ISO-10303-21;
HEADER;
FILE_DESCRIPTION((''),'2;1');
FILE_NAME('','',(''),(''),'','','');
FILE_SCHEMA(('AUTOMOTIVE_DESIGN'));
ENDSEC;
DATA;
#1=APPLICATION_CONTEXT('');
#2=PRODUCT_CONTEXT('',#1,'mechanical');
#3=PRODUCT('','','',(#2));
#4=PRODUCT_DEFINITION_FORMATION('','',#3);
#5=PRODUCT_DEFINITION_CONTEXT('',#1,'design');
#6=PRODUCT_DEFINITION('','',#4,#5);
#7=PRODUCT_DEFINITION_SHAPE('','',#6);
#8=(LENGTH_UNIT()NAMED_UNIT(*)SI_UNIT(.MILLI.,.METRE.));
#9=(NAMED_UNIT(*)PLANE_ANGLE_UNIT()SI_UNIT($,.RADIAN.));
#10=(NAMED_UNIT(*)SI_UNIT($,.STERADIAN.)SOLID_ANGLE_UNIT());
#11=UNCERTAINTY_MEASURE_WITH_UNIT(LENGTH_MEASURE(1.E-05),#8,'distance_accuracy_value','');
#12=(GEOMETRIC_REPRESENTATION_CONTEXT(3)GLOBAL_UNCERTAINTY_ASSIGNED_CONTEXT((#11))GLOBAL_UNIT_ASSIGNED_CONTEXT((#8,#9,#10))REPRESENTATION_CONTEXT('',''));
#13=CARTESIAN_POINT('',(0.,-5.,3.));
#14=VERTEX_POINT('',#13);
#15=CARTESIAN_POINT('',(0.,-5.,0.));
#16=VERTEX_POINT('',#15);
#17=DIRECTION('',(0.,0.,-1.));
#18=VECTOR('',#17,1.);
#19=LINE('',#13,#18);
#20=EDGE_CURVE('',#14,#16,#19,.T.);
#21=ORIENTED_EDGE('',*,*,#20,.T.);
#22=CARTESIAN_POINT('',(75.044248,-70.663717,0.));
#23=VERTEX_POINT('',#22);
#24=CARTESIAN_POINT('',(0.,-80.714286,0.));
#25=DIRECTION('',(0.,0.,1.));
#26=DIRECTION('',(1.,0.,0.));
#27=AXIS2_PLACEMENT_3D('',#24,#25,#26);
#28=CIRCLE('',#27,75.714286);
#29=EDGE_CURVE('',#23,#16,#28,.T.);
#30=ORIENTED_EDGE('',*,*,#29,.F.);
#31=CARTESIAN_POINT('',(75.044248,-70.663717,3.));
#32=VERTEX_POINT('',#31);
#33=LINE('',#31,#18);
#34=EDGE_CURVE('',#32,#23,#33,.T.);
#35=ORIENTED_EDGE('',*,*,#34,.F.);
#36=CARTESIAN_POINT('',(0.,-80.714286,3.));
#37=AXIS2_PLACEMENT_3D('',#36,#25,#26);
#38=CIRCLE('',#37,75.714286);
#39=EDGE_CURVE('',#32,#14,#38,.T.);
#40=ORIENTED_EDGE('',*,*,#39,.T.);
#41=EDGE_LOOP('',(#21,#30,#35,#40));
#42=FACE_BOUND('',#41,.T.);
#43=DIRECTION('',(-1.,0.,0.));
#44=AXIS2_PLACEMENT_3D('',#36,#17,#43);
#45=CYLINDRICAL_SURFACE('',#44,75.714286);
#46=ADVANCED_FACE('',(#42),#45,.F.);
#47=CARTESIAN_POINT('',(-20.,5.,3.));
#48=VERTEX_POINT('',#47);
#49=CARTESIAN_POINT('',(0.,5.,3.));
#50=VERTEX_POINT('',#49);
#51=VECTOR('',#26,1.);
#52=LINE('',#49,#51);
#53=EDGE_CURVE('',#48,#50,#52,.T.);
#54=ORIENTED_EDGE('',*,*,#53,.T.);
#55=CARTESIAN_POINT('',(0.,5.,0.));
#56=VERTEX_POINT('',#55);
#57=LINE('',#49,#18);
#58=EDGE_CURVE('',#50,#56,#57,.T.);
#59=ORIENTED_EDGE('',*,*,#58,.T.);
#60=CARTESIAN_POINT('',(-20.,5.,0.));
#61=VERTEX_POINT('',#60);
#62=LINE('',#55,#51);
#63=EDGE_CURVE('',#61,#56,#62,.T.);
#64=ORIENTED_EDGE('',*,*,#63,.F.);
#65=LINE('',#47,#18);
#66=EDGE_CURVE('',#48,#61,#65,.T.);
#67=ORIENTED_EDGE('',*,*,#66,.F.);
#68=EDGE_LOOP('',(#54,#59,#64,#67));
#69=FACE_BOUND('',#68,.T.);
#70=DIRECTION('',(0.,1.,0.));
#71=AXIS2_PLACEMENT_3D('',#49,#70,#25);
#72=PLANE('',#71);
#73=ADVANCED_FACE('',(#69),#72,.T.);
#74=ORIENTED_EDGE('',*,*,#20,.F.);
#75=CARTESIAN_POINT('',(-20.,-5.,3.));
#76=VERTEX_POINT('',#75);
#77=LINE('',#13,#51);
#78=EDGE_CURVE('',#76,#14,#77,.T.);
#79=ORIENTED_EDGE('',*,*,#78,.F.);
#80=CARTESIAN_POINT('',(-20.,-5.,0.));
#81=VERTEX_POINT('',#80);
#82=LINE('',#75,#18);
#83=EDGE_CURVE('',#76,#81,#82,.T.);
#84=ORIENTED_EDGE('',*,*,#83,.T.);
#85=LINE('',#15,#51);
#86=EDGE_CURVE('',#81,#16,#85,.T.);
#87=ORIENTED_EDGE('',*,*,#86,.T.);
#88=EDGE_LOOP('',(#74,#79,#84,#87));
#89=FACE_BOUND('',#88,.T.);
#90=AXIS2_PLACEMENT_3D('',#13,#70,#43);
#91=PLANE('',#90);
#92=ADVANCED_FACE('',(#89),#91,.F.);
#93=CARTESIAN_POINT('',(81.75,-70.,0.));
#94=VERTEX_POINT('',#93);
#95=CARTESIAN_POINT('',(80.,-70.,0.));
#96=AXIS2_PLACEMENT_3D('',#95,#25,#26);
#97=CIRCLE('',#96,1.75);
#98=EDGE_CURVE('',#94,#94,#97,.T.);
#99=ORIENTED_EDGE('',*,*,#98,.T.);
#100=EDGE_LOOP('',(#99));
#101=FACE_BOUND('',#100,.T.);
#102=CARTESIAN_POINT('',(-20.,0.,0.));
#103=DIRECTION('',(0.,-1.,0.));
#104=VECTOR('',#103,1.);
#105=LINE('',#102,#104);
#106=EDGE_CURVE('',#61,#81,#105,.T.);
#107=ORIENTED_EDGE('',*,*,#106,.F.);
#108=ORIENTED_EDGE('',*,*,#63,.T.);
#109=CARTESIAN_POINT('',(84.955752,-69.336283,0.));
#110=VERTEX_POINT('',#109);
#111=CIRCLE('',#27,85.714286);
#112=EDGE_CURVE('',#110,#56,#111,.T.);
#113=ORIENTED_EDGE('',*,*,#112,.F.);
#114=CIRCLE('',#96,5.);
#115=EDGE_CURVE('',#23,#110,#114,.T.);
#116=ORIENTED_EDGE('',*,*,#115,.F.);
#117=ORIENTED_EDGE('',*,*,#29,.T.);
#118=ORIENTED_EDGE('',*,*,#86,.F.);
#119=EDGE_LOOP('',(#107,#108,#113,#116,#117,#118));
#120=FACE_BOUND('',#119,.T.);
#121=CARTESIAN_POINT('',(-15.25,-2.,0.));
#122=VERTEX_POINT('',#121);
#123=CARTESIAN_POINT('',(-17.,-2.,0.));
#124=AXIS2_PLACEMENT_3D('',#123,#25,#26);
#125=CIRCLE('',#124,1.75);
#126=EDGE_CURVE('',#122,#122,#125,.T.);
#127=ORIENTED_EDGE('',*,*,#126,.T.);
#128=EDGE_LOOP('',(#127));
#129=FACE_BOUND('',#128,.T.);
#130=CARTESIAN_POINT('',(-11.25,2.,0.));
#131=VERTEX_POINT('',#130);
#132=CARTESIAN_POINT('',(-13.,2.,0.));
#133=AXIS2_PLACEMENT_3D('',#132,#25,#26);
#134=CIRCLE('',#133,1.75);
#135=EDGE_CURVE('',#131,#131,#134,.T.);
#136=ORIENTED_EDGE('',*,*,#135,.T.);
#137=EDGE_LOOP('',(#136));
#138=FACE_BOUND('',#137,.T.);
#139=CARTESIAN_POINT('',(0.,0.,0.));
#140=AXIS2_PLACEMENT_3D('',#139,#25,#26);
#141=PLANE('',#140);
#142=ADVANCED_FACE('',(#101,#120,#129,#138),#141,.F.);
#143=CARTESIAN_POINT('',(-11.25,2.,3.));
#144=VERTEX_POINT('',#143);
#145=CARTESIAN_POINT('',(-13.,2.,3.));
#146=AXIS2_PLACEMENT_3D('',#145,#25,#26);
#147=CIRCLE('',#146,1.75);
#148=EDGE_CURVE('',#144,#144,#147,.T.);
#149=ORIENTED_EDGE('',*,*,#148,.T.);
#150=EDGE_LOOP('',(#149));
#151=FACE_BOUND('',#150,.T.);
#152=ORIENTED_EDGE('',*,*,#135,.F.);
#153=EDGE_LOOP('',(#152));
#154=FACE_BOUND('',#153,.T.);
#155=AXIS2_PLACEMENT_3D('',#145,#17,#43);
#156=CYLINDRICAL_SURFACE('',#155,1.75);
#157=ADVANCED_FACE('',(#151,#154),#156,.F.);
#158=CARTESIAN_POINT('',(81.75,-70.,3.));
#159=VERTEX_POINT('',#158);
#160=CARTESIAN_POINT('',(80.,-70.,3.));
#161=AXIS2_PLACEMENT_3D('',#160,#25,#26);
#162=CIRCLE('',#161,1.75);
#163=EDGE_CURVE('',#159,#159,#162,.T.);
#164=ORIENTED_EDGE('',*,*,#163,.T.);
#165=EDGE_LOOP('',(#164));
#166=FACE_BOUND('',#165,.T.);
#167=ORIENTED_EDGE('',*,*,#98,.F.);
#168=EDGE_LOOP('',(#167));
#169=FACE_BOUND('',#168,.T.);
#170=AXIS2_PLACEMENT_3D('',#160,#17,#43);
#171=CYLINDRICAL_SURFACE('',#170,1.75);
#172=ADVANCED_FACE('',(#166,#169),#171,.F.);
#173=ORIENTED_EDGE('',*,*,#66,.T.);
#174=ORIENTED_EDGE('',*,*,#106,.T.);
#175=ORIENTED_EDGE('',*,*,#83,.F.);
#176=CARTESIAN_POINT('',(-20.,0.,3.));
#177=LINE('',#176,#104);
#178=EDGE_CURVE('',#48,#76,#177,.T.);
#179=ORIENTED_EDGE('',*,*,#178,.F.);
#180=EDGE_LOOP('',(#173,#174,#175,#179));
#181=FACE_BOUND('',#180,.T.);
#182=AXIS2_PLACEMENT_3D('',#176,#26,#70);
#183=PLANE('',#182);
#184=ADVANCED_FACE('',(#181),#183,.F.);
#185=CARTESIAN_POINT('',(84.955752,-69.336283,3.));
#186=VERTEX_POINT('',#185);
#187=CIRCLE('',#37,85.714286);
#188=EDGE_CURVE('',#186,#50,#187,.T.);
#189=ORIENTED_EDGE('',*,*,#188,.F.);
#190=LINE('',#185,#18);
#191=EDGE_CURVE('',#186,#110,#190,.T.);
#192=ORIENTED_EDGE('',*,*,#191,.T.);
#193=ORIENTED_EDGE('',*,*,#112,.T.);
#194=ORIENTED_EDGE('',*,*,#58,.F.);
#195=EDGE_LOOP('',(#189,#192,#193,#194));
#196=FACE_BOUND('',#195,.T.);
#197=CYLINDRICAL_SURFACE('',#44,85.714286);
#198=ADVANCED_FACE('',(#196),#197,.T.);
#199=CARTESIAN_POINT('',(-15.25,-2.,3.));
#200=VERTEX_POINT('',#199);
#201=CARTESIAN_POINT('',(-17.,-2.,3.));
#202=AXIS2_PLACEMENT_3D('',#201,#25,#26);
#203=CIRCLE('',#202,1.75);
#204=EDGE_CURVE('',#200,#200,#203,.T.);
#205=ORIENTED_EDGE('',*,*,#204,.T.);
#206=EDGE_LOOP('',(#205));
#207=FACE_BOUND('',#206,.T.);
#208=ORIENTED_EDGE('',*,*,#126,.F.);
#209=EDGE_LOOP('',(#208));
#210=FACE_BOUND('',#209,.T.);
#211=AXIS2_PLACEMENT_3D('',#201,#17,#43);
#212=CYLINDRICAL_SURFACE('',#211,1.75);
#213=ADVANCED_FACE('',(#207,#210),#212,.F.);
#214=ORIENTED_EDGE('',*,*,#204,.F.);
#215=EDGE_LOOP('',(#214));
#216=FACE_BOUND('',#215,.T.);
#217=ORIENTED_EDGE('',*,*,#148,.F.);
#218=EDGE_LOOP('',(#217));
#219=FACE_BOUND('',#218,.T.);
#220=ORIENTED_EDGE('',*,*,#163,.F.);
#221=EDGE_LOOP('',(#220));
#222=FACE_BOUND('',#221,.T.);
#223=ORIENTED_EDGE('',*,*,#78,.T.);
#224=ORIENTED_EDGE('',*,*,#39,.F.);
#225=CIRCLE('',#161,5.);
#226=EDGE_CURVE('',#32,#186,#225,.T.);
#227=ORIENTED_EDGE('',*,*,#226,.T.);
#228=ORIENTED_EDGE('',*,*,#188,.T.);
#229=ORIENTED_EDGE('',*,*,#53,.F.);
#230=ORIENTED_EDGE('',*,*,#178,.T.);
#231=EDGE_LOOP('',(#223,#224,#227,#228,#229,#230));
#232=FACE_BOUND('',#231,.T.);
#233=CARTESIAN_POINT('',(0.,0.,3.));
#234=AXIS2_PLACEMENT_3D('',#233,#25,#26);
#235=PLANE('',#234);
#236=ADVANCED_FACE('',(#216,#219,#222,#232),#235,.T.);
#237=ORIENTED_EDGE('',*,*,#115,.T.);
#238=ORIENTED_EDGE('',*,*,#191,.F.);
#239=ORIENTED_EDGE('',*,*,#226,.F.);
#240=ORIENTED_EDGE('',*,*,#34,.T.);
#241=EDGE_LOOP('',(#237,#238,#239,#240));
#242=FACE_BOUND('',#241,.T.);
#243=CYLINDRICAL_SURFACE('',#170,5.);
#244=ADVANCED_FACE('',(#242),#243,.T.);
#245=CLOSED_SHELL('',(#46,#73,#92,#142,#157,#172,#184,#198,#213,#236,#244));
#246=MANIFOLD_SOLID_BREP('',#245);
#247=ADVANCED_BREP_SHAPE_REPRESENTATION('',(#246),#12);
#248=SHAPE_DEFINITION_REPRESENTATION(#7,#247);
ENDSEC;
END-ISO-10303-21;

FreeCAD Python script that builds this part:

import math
import FreeCAD as App
import Part
import Sketcher
from FreeCAD import Vector

doc = App.newDocument("Part")
body = doc.addObject("PartDesign::Body", "Body")

sketch1 = body.newObject("Sketcher::SketchObject", "Sketch")
sketch1.AttachmentSupport = (doc.getObject("XY_Plane"), [""])
sketch1.MapMode = "FlatFace"
sketch1.addGeometry([
    Part.LineSegment(Vector(0, 5, 0), Vector(-20, 5, 0)),
    Part.LineSegment(Vector(-20, 5, 0), Vector(-20, -5, 0)),
    Part.LineSegment(Vector(-20, -5, 0), Vector(0, -5, 0)),
    Part.ArcOfCircle(Part.Circle(Vector(0, -80.7, 0), Vector(0, 0, 1), 75.7), math.radians(8), math.radians(90)),
    Part.ArcOfCircle(Part.Circle(Vector(80, -70, 0), Vector(0, 0, 1), 5), math.radians(-172), math.radians(8)),
    Part.ArcOfCircle(Part.Circle(Vector(0, -80.7, 0), Vector(0, 0, 1), 85.7), math.radians(8), math.radians(90)),
    Part.Circle(Vector(-17, -2, 0), Vector(0, 0, 1), 1.8),
    Part.Circle(Vector(-13, 2, 0), Vector(0, 0, 1), 1.8),
    Part.Circle(Vector(80, -70, 0), Vector(0, 0, 1), 1.8),
], False)
sketch1.addConstraint([
    Sketcher.Constraint("Coincident", 0, 2, 1, 1),
    Sketcher.Constraint("Coincident", 1, 2, 2, 1),
    Sketcher.Constraint("Tangent", 2, 2, 3, 2),
    Sketcher.Constraint("Tangent", 3, 1, 4, 1),
    Sketcher.Constraint("Tangent", 4, 2, 5, 1),
    Sketcher.Constraint("Tangent", 5, 2, 0, 1),
    Sketcher.Constraint("Horizontal", 0),
    Sketcher.Constraint("Vertical", 1),
    Sketcher.Constraint("Horizontal", 2),
    Sketcher.Constraint("Coincident", 5, 3, 3, 3),
    Sketcher.Constraint("Coincident", 8, 3, 4, 3),
    Sketcher.Constraint("Equal", 6, 7),
    Sketcher.Constraint("Equal", 7, 8),
    Sketcher.Constraint("Symmetric", 2, 2, 5, 2, -1, 1),
    Sketcher.Constraint("Radius", 4, 5.0),
    Sketcher.Constraint("Diameter", 6, 3.5),
    Sketcher.Constraint("DistanceX", 0, 2, 0, 1, 20.0),
    Sketcher.Constraint("DistanceX", -1, 1, 4, 3, 80.0),
    Sketcher.Constraint("DistanceY", 4, 3, -1, 1, 70.0),
    Sketcher.Constraint("DistanceX", 6, 3, -1, 1, 17.0),
    Sketcher.Constraint("DistanceY", 6, 3, -1, 1, 2.0),
    Sketcher.Constraint("DistanceX", 7, 3, -1, 1, 13.0),
    Sketcher.Constraint("DistanceY", -1, 1, 7, 3, 2.0),
])
pad1 = body.newObject("PartDesign::Pad", "Pad")
pad1.Profile = sketch1
pad1.Length = 3

doc.recompute()
